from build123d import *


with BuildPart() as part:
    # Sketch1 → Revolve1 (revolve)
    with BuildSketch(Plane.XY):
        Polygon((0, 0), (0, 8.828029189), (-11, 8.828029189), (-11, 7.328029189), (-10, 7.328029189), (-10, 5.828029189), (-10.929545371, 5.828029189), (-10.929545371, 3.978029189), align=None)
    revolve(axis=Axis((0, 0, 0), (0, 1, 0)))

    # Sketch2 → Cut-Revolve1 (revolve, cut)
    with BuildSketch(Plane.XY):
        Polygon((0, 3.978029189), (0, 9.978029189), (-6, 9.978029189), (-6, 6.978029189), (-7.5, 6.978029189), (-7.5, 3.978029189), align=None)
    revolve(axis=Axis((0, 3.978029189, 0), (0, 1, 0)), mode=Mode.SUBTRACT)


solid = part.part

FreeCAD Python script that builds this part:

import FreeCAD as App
import Part
import Sketcher
from FreeCAD import Vector
Q = App.Units.Quantity


def add_polygon(sketch, points):
    """Adds a closed chain of lines whose ends are joined by coincident constraints."""
    first, n = sketch.GeometryCount, len(points)
    for a, b in zip(points, points[1:] + points[:1]):
        sketch.addGeometry(Part.LineSegment(App.Vector(*a, 0), App.Vector(*b, 0)), False)
    for i in range(n):
        sketch.addConstraint(Sketcher.Constraint("Coincident", first + i, 2, first + (i + 1) % n, 1))

doc = App.newDocument("Part")
body = doc.addObject("PartDesign::Body", "Body")

sketch1 = body.newObject("Sketcher::SketchObject", "Sketch")
sketch1.AttachmentSupport = (doc.getObject("XY_Plane"), [""])
sketch1.MapMode = "FlatFace"
add_polygon(sketch1, [(0, 0), (0, 8.8), (-11, 8.8), (-11, 7.3), (-10, 7.3), (-10, 5.8), (-10.9, 5.8), (-10.9, 4)])
sketch1.addConstraint([
    Sketcher.Constraint("Vertical", 0),
    Sketcher.Constraint("Horizontal", 1),
    Sketcher.Constraint("Vertical", 2),
    Sketcher.Constraint("Horizontal", 3),
    Sketcher.Constraint("Vertical", 4),
    Sketcher.Constraint("Horizontal", 5),
    Sketcher.Constraint("Vertical", 6),
    Sketcher.Constraint("Coincident", 7, 2, -1, 1),
    Sketcher.Constraint("Equal", 2, 4),
    Sketcher.Constraint("DistanceX", 1, 2, 1, 1, 11.0),
    Sketcher.Constraint("DistanceX", 3, 1, 3, 2, 1.0),
    Sketcher.Constraint("Angle", 7, Q("-20 deg")),
    Sketcher.Constraint("DistanceY", 2, 2, 2, 1, 1.5),
    Sketcher.Constraint("DistanceY", 6, 2, 6, 1, 1.85),
    Sketcher.Constraint("DistanceY", 0, 1, 0, 2, 8.828029),
])
revolution = body.newObject("PartDesign::Revolution", "Revolution")
revolution.Profile = sketch1
revolution.ReferenceAxis = (sketch1, ["V_Axis"])
revolution.Angle = 360

sketch2 = body.newObject("Sketcher::SketchObject", "Sketch001")
sketch2.AttachmentSupport = (doc.getObject("XY_Plane"), [""])
sketch2.MapMode = "FlatFace"
add_polygon(sketch2, [(0, 4), (0, 10), (-6, 10), (-6, 7), (-7.5, 7), (-7.5, 4)])
sketch2.addConstraint([
    Sketcher.Constraint("Vertical", 0),
    Sketcher.Constraint("Horizontal", 1),
    Sketcher.Constraint("Vertical", 2),
    Sketcher.Constraint("Horizontal", 3),
    Sketcher.Constraint("Vertical", 4),
    Sketcher.Constraint("Horizontal", 5),
    Sketcher.Constraint("PointOnObject", 0, 2, -2),
    Sketcher.Constraint("Equal", 1, 0),
    Sketcher.Constraint("Equal", 2, 4),
    Sketcher.Constraint("DistanceX", 1, 2, 1, 1, 6.0),
    Sketcher.Constraint("DistanceX", 3, 2, 3, 1, 1.5),
    Sketcher.Constraint("DistanceY", -1, 1, 0, 2, 9.978029),
])
groove = body.newObject("PartDesign::Groove", "Groove")
groove.Profile = sketch2
groove.ReferenceAxis = (sketch2, ["V_Axis"])
groove.Angle = 360

doc.recompute()
